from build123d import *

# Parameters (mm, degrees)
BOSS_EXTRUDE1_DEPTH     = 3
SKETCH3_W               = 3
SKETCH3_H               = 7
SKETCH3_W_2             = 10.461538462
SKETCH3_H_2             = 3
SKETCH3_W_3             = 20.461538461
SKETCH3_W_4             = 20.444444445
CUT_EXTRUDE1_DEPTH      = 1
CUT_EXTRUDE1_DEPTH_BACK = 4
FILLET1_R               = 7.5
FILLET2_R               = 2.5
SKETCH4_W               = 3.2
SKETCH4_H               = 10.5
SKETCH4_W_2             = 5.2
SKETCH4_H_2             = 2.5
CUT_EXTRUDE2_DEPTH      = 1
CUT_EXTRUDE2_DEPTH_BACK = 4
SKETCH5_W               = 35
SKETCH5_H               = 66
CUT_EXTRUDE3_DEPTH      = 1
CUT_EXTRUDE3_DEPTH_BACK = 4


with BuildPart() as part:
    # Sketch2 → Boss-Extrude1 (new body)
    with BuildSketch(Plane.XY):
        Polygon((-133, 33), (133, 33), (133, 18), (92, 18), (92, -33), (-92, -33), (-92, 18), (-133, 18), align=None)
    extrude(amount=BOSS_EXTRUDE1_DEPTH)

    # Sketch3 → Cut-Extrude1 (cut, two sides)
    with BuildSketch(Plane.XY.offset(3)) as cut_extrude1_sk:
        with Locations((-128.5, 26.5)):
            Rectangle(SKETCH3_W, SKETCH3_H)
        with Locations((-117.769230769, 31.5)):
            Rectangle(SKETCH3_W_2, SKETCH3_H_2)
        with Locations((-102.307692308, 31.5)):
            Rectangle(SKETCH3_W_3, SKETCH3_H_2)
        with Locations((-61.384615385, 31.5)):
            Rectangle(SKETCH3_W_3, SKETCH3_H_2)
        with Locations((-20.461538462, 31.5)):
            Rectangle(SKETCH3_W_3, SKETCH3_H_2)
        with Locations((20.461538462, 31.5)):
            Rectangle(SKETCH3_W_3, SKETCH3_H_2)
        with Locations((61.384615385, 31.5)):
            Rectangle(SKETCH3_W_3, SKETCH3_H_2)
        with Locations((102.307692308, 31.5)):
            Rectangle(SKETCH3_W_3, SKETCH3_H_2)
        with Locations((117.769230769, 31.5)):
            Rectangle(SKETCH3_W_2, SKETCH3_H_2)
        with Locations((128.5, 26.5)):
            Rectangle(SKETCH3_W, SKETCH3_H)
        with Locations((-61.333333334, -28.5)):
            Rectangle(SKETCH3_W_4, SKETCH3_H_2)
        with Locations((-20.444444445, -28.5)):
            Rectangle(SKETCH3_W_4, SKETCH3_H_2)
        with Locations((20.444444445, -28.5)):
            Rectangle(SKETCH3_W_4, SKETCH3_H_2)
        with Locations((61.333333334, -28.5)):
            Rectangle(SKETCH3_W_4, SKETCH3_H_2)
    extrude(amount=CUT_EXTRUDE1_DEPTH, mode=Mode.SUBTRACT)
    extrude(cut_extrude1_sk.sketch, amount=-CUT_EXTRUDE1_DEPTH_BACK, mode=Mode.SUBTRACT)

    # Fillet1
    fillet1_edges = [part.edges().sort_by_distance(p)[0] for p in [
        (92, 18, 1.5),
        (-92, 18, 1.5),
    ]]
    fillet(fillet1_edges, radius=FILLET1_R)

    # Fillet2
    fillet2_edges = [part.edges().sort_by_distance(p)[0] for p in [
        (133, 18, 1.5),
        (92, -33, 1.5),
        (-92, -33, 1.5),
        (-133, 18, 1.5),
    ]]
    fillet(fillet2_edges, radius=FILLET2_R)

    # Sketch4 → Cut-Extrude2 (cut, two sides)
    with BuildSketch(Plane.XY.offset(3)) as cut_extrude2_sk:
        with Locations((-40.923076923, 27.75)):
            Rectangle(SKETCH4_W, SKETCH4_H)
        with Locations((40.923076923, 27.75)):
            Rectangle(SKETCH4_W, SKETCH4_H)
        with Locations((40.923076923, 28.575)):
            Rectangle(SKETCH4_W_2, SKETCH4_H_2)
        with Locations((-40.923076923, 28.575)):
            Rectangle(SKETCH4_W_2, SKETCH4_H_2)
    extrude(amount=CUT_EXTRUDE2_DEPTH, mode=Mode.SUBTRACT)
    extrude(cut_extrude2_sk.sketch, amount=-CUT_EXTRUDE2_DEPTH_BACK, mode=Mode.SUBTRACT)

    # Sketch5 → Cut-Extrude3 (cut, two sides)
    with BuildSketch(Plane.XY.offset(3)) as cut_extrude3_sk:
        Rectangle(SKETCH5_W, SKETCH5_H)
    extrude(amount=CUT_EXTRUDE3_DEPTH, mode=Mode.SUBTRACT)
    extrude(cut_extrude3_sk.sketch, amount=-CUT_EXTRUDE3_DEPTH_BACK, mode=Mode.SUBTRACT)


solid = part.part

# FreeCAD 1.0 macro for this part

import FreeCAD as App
import Part
import Sketcher
Q = App.Units.Quantity


def edges_at(feature, points):
    """Names of the edges that pass closest to the given points."""
    edges = feature.Shape.Edges
    near = lambda p: min(range(len(edges)), key=lambda i: edges[i].distToShape(Part.Vertex(*p))[0])
    return sorted({f"Edge{near(p) + 1}" for p in points})


def add_polygon(sketch, points):
    """Adds a closed chain of lines whose ends are joined by coincident constraints."""
    first, n = sketch.GeometryCount, len(points)
    for a, b in zip(points, points[1:] + points[:1]):
        sketch.addGeometry(Part.LineSegment(App.Vector(*a, 0), App.Vector(*b, 0)), False)
    for i in range(n):
        sketch.addConstraint(Sketcher.Constraint("Coincident", first + i, 2, first + (i + 1) % n, 1))

doc = App.newDocument("Part")
body = doc.addObject("PartDesign::Body", "Body")
body.AllowCompound = True

# Sketch on XY plane
sketch1 = body.newObject("Sketcher::SketchObject", "Sketch")
sketch1.AttachmentSupport = (doc.getObject("XY_Plane"), [""])
sketch1.MapMode = "FlatFace"
add_polygon(sketch1, [(133, 33), (-133, 33), (-133, 18), (-92, 18), (-92, -33), (92, -33), (92, 18), (133, 18)])  # lines 0-7
sketch1.addConstraint([
    Sketcher.Constraint("Horizontal", 0),
    Sketcher.Constraint("Vertical", 1),
    Sketcher.Constraint("Horizontal", 2),
    Sketcher.Constraint("Vertical", 3),
    Sketcher.Constraint("Horizontal", 4),
    Sketcher.Constraint("Vertical", 5),
    Sketcher.Constraint("Horizontal", 6),
    Sketcher.Constraint("Vertical", 7),
    Sketcher.Constraint("Symmetric", 2, 2, 5, 2, -2),
    Sketcher.Constraint("Equal", 2, 6),
    Sketcher.Constraint("DistanceX", 0, 2, 0, 1, Q("266 mm")),
    Sketcher.Constraint("DistanceX", 2, 1, 2, 2, Q("41 mm")),
    Sketcher.Constraint("DistanceY", 1, 2, 1, 1, Q("15 mm")),
    Sketcher.Constraint("DistanceY", 3, 2, 3, 1, Q("51 mm")),
    Sketcher.Constraint("DistanceY", -1, 1, 0, 2, Q("33 mm")),
])
pad1 = body.newObject("PartDesign::Pad", "Pad")
pad1.Profile = sketch1
pad1.Length = 3

# Sketch on XY plane
sketch2 = body.newObject("Sketcher::SketchObject", "Sketch001")
sketch2.AttachmentSupport = (doc.getObject("XY_Plane"), [""])
sketch2.MapMode = "FlatFace"
sketch2.AttachmentOffset = App.Placement(App.Vector(0, 0, 3), App.Rotation())
add_polygon(sketch2, [(-130, 30), (-130, 23), (-127, 23), (-127, 30)])  # lines 0-3
add_polygon(sketch2, [(-123, 33), (-123, 30), (-92.1, 30), (-92.1, 33)])  # lines 4-7
add_polygon(sketch2, [(-71.6, 33), (-71.6, 30), (-51.2, 30), (-51.2, 33)])  # lines 8-11
add_polygon(sketch2, [(-30.7, 33), (-30.7, 30), (-10.2, 30), (-10.2, 33)])  # lines 12-15
add_polygon(sketch2, [(10.2, 33), (10.2, 30), (30.7, 30), (30.7, 33)])  # lines 16-19
add_polygon(sketch2, [(51.2, 33), (51.2, 30), (71.6, 30), (71.6, 33)])  # lines 20-23
add_polygon(sketch2, [(92.1, 33), (92.1, 30), (123, 30), (123, 33)])  # lines 24-27
add_polygon(sketch2, [(127, 30), (127, 23), (130, 23), (130, 30)])  # lines 28-31
add_polygon(sketch2, [(-71.6, -27), (-71.6, -30), (-51.1, -30), (-51.1, -27)])  # lines 32-35
add_polygon(sketch2, [(-30.7, -27), (-30.7, -30), (-10.2, -30), (-10.2, -27)])  # lines 36-39
add_polygon(sketch2, [(10.2, -27), (10.2, -30), (30.7, -30), (30.7, -27)])  # lines 40-43
add_polygon(sketch2, [(51.1, -27), (51.1, -30), (71.6, -30), (71.6, -27)])  # lines 44-47
sketch2.addConstraint([
    Sketcher.Constraint("Vertical", 0),
    Sketcher.Constraint("Horizontal", 1),
    Sketcher.Constraint("Vertical", 2),
    Sketcher.Constraint("Horizontal", 3),
    Sketcher.Constraint("Vertical", 4),
    Sketcher.Constraint("Horizontal", 5),
    Sketcher.Constraint("Vertical", 6),
    Sketcher.Constraint("Horizontal", 7),
    Sketcher.Constraint("Vertical", 8),
    Sketcher.Constraint("Horizontal", 9),
    Sketcher.Constraint("Vertical", 10),
    Sketcher.Constraint("Horizontal", 11),
    Sketcher.Constraint("Vertical", 12),
    Sketcher.Constraint("Horizontal", 13),
    Sketcher.Constraint("Vertical", 14),
    Sketcher.Constraint("Horizontal", 15),
    Sketcher.Constraint("Vertical", 16),
    Sketcher.Constraint("Horizontal", 17),
    Sketcher.Constraint("Vertical", 18),
    Sketcher.Constraint("Horizontal", 19),
    Sketcher.Constraint("Vertical", 20),
    Sketcher.Constraint("Horizontal", 21),
    Sketcher.Constraint("Vertical", 22),
    Sketcher.Constraint("Horizontal", 23),
    Sketcher.Constraint("Vertical", 24),
    Sketcher.Constraint("Horizontal", 25),
    Sketcher.Constraint("Vertical", 26),
    Sketcher.Constraint("Horizontal", 27),
    Sketcher.Constraint("Vertical", 28),
    Sketcher.Constraint("Horizontal", 29),
    Sketcher.Constraint("Vertical", 30),
    Sketcher.Constraint("Horizontal", 31),
    Sketcher.Constraint("Vertical", 32),
    Sketcher.Constraint("Horizontal", 33),
    Sketcher.Constraint("Vertical", 34),
    Sketcher.Constraint("Horizontal", 35),
    Sketcher.Constraint("Vertical", 36),
    Sketcher.Constraint("Horizontal", 37),
    Sketcher.Constraint("Vertical", 38),
    Sketcher.Constraint("Horizontal", 39),
    Sketcher.Constraint("Vertical", 40),
    Sketcher.Constraint("Horizontal", 41),
    Sketcher.Constraint("Vertical", 42),
    Sketcher.Constraint("Horizontal", 43),
    Sketcher.Constraint("Vertical", 44),
    Sketcher.Constraint("Horizontal", 45),
    Sketcher.Constraint("Vertical", 46),
    Sketcher.Constraint("Horizontal", 47),
    Sketcher.Constraint("Symmetric", 13, 2, 16, 2, -2),
    Sketcher.Constraint("Symmetric", 15, 2, 18, 2, -2),
    Sketcher.Constraint("Symmetric", 9, 2, 20, 2, -2),
    Sketcher.Constraint("Symmetric", 11, 2, 22, 2, -2),
    Sketcher.Constraint("Symmetric", 5, 2, 24, 2, -2),
    Sketcher.Constraint("Symmetric", 7, 2, 26, 2, -2),
    Sketcher.Constraint("Symmetric", 1, 2, 28, 2, -2),
    Sketcher.Constraint("Symmetric", 3, 2, 30, 2, -2),
    Sketcher.Constraint("Symmetric", 37, 2, 40, 2, -2),
    Sketcher.Constraint("Symmetric", 39, 2, 42, 2, -2),
    Sketcher.Constraint("Symmetric", 33, 2, 44, 2, -2),
    Sketcher.Constraint("Symmetric", 35, 2, 46, 2, -2),
    Sketcher.Constraint("Horizontal", 3, 2, 4, 2),
    Sketcher.Constraint("Horizontal", 5, 2, 8, 2),
    Sketcher.Constraint("Horizontal", 7, 2, 10, 2),
    Sketcher.Constraint("Horizontal", 9, 2, 12, 2),
    Sketcher.Constraint("Horizontal", 11, 2, 14, 2),
    Sketcher.Constraint("Horizontal", 33, 2, 36, 2),
    Sketcher.Constraint("Horizontal", 35, 2, 38, 2),
    Sketcher.Constraint("Equal", 11, 13),
    Sketcher.Constraint("Equal", 35, 37),
    Sketcher.Constraint("Equal", 31, 4),
    Sketcher.Constraint("Equal", 26, 32),
    Sketcher.Constraint("DistanceX", 1, 1, 1, 2, Q("3 mm")),
    Sketcher.Constraint("DistanceY", 0, 2, 0, 1, Q("7 mm")),
    Sketcher.Constraint("DistanceX", 0, 2, -1, 1, Q("130 mm")),
    Sketcher.Constraint("DistanceY", -1, 1, 0, 2, Q("23 mm")),
    Sketcher.Constraint("DistanceX", 4, 2, -1, 1, Q("123 mm")),
    Sketcher.Constraint("DistanceY", 32, 2, -1, 1, Q("30 mm")),
    Sketcher.Constraint("DistanceX", 9, 1, 9, 2, Q("20.461538 mm")),
    Sketcher.Constraint("DistanceX", 5, 1, 5, 2, Q("30.923077 mm")),
    Sketcher.Constraint("DistanceX", 33, 1, 33, 2, Q("20.444444 mm")),
    Sketcher.Constraint("DistanceX", 13, 2, -1, 1, Q("10.230769 mm")),
    Sketcher.Constraint("DistanceX", 33, 2, -1, 1, Q("51.111111 mm")),
    Sketcher.Constraint("DistanceX", 5, 2, 8, 2, Q("20.461538 mm")),
    Sketcher.Constraint("DistanceX", 32, 2, 36, 2, Q("40.888889 mm")),
])
pocket1 = body.newObject("PartDesign::Pocket", "Pocket")
pocket1.Profile = sketch2
pocket1.Type = "ThroughAll"
pocket1.Midplane = True
doc.recompute()

fillet = body.newObject("PartDesign::Fillet", "Fillet")
fillet.Base = (pocket1, edges_at(pocket1, [(92, 18, 1.5), (-92, 18, 1.5)]))
fillet.Radius = 7.5
doc.recompute()

fillet2 = body.newObject("PartDesign::Fillet", "Fillet001")
fillet2.Base = (fillet, edges_at(fillet, [
    (133, 18, 1.5),
    (92, -33, 1.5),
    (-92, -33, 1.5),
    (-133, 18, 1.5),
]))
fillet2.Radius = 2.5

# Sketch on XY plane
sketch3 = body.newObject("Sketcher::SketchObject", "Sketch002")
sketch3.AttachmentSupport = (doc.getObject("XY_Plane"), [""])
sketch3.MapMode = "FlatFace"
sketch3.AttachmentOffset = App.Placement(App.Vector(0, 0, 3), App.Rotation())
add_polygon(sketch3, [(-42.5, 27.3), (-42.5, 22.5), (-39.3, 22.5), (-39.3, 27.3), (-38.3, 27.3), (-38.3, 29.8), (-39.3, 29.8), (-39.3, 33), (-42.5, 33), (-42.5, 29.8), (-43.5, 29.8), (-43.5, 27.3)])  # lines 0-11
add_polygon(sketch3, [(39.3, 27.3), (39.3, 22.5), (42.5, 22.5), (42.5, 27.3), (43.5, 27.3), (43.5, 29.8), (42.5, 29.8), (42.5, 33), (39.3, 33), (39.3, 29.8), (38.3, 29.8), (38.3, 27.3)])  # lines 12-23
sketch3.addConstraint([
    Sketcher.Constraint("Vertical", 0),
    Sketcher.Constraint("Horizontal", 1),
    Sketcher.Constraint("Vertical", 2),
    Sketcher.Constraint("Horizontal", 3),
    Sketcher.Constraint("Vertical", 4),
    Sketcher.Constraint("Horizontal", 5),
    Sketcher.Constraint("Vertical", 6),
    Sketcher.Constraint("Horizontal", 7),
    Sketcher.Constraint("Vertical", 8),
    Sketcher.Constraint("Horizontal", 9),
    Sketcher.Constraint("Vertical", 10),
    Sketcher.Constraint("Horizontal", 11),
    Sketcher.Constraint("Vertical", 12),
    Sketcher.Constraint("Horizontal", 13),
    Sketcher.Constraint("Vertical", 14),
    Sketcher.Constraint("Horizontal", 15),
    Sketcher.Constraint("Vertical", 16),
    Sketcher.Constraint("Horizontal", 17),
    Sketcher.Constraint("Vertical", 18),
    Sketcher.Constraint("Horizontal", 19),
    Sketcher.Constraint("Vertical", 20),
    Sketcher.Constraint("Horizontal", 21),
    Sketcher.Constraint("Vertical", 22),
    Sketcher.Constraint("Horizontal", 23),
    Sketcher.Constraint("Symmetric", 1, 2, 12, 2, -2),
    Sketcher.Constraint("Symmetric", 11, 2, 14, 2, -2),
    Sketcher.Constraint("Symmetric", 9, 2, 16, 2, -2),
    Sketcher.Constraint("Symmetric", 7, 2, 18, 2, -2),
    Sketcher.Constraint("Symmetric", 5, 2, 20, 2, -2),
    Sketcher.Constraint("Symmetric", 3, 2, 22, 2, -2),
    Sketcher.Constraint("Horizontal", 5, 2, 8, 2),
    Sketcher.Constraint("Horizontal", 3, 2, 10, 2),
    Sketcher.Constraint("Vertical", 2, 2, 5, 2),
    Sketcher.Constraint("Vertical", 0, 2, 7, 2),
    Sketcher.Constraint("Equal", 5, 9),
    Sketcher.Constraint("DistanceX", 3, 1, 3, 2, Q("1 mm")),
    Sketcher.Constraint("DistanceX", 1, 1, 1, 2, Q("3.2 mm")),
    Sketcher.Constraint("DistanceY", 4, 1, 4, 2, Q("2.5 mm")),
    Sketcher.Constraint("DistanceY", -1, 1, 6, 2, Q("33 mm")),
    Sketcher.Constraint("DistanceY", -1, 1, 0, 2, Q("22.5 mm")),
    Sketcher.Constraint("DistanceY", 0, 2, 0, 1, Q("4.825 mm")),
    Sketcher.Constraint("DistanceX", 0, 2, -1, 1, Q("42.523077 mm")),
])
pocket2 = body.newObject("PartDesign::Pocket", "Pocket001")
pocket2.Profile = sketch3
pocket2.Type = "ThroughAll"
pocket2.Midplane = True

# Sketch on XY plane
sketch4 = body.newObject("Sketcher::SketchObject", "Sketch003")
sketch4.AttachmentSupport = (doc.getObject("XY_Plane"), [""])
sketch4.MapMode = "FlatFace"
sketch4.AttachmentOffset = App.Placement(App.Vector(0, 0, 3), App.Rotation())
add_polygon(sketch4, [(-18, 33), (-18, -33), (18, -33), (18, 33)])  # lines 0-3
sketch4.addConstraint([
    Sketcher.Constraint("Vertical", 0),
    Sketcher.Constraint("Horizontal", 1),
    Sketcher.Constraint("Vertical", 2),
    Sketcher.Constraint("Horizontal", 3),
    Sketcher.Constraint("Symmetric", 0, 2, 2, 2, -1, 1),
    Sketcher.Constraint("DistanceX", 1, 1, 1, 2, Q("35 mm")),
    Sketcher.Constraint("DistanceY", 0, 2, 0, 1, Q("66 mm")),
])
pocket3 = body.newObject("PartDesign::Pocket", "Pocket002")
pocket3.Profile = sketch4
pocket3.Type = "ThroughAll"
pocket3.Midplane = True

doc.recompute()
